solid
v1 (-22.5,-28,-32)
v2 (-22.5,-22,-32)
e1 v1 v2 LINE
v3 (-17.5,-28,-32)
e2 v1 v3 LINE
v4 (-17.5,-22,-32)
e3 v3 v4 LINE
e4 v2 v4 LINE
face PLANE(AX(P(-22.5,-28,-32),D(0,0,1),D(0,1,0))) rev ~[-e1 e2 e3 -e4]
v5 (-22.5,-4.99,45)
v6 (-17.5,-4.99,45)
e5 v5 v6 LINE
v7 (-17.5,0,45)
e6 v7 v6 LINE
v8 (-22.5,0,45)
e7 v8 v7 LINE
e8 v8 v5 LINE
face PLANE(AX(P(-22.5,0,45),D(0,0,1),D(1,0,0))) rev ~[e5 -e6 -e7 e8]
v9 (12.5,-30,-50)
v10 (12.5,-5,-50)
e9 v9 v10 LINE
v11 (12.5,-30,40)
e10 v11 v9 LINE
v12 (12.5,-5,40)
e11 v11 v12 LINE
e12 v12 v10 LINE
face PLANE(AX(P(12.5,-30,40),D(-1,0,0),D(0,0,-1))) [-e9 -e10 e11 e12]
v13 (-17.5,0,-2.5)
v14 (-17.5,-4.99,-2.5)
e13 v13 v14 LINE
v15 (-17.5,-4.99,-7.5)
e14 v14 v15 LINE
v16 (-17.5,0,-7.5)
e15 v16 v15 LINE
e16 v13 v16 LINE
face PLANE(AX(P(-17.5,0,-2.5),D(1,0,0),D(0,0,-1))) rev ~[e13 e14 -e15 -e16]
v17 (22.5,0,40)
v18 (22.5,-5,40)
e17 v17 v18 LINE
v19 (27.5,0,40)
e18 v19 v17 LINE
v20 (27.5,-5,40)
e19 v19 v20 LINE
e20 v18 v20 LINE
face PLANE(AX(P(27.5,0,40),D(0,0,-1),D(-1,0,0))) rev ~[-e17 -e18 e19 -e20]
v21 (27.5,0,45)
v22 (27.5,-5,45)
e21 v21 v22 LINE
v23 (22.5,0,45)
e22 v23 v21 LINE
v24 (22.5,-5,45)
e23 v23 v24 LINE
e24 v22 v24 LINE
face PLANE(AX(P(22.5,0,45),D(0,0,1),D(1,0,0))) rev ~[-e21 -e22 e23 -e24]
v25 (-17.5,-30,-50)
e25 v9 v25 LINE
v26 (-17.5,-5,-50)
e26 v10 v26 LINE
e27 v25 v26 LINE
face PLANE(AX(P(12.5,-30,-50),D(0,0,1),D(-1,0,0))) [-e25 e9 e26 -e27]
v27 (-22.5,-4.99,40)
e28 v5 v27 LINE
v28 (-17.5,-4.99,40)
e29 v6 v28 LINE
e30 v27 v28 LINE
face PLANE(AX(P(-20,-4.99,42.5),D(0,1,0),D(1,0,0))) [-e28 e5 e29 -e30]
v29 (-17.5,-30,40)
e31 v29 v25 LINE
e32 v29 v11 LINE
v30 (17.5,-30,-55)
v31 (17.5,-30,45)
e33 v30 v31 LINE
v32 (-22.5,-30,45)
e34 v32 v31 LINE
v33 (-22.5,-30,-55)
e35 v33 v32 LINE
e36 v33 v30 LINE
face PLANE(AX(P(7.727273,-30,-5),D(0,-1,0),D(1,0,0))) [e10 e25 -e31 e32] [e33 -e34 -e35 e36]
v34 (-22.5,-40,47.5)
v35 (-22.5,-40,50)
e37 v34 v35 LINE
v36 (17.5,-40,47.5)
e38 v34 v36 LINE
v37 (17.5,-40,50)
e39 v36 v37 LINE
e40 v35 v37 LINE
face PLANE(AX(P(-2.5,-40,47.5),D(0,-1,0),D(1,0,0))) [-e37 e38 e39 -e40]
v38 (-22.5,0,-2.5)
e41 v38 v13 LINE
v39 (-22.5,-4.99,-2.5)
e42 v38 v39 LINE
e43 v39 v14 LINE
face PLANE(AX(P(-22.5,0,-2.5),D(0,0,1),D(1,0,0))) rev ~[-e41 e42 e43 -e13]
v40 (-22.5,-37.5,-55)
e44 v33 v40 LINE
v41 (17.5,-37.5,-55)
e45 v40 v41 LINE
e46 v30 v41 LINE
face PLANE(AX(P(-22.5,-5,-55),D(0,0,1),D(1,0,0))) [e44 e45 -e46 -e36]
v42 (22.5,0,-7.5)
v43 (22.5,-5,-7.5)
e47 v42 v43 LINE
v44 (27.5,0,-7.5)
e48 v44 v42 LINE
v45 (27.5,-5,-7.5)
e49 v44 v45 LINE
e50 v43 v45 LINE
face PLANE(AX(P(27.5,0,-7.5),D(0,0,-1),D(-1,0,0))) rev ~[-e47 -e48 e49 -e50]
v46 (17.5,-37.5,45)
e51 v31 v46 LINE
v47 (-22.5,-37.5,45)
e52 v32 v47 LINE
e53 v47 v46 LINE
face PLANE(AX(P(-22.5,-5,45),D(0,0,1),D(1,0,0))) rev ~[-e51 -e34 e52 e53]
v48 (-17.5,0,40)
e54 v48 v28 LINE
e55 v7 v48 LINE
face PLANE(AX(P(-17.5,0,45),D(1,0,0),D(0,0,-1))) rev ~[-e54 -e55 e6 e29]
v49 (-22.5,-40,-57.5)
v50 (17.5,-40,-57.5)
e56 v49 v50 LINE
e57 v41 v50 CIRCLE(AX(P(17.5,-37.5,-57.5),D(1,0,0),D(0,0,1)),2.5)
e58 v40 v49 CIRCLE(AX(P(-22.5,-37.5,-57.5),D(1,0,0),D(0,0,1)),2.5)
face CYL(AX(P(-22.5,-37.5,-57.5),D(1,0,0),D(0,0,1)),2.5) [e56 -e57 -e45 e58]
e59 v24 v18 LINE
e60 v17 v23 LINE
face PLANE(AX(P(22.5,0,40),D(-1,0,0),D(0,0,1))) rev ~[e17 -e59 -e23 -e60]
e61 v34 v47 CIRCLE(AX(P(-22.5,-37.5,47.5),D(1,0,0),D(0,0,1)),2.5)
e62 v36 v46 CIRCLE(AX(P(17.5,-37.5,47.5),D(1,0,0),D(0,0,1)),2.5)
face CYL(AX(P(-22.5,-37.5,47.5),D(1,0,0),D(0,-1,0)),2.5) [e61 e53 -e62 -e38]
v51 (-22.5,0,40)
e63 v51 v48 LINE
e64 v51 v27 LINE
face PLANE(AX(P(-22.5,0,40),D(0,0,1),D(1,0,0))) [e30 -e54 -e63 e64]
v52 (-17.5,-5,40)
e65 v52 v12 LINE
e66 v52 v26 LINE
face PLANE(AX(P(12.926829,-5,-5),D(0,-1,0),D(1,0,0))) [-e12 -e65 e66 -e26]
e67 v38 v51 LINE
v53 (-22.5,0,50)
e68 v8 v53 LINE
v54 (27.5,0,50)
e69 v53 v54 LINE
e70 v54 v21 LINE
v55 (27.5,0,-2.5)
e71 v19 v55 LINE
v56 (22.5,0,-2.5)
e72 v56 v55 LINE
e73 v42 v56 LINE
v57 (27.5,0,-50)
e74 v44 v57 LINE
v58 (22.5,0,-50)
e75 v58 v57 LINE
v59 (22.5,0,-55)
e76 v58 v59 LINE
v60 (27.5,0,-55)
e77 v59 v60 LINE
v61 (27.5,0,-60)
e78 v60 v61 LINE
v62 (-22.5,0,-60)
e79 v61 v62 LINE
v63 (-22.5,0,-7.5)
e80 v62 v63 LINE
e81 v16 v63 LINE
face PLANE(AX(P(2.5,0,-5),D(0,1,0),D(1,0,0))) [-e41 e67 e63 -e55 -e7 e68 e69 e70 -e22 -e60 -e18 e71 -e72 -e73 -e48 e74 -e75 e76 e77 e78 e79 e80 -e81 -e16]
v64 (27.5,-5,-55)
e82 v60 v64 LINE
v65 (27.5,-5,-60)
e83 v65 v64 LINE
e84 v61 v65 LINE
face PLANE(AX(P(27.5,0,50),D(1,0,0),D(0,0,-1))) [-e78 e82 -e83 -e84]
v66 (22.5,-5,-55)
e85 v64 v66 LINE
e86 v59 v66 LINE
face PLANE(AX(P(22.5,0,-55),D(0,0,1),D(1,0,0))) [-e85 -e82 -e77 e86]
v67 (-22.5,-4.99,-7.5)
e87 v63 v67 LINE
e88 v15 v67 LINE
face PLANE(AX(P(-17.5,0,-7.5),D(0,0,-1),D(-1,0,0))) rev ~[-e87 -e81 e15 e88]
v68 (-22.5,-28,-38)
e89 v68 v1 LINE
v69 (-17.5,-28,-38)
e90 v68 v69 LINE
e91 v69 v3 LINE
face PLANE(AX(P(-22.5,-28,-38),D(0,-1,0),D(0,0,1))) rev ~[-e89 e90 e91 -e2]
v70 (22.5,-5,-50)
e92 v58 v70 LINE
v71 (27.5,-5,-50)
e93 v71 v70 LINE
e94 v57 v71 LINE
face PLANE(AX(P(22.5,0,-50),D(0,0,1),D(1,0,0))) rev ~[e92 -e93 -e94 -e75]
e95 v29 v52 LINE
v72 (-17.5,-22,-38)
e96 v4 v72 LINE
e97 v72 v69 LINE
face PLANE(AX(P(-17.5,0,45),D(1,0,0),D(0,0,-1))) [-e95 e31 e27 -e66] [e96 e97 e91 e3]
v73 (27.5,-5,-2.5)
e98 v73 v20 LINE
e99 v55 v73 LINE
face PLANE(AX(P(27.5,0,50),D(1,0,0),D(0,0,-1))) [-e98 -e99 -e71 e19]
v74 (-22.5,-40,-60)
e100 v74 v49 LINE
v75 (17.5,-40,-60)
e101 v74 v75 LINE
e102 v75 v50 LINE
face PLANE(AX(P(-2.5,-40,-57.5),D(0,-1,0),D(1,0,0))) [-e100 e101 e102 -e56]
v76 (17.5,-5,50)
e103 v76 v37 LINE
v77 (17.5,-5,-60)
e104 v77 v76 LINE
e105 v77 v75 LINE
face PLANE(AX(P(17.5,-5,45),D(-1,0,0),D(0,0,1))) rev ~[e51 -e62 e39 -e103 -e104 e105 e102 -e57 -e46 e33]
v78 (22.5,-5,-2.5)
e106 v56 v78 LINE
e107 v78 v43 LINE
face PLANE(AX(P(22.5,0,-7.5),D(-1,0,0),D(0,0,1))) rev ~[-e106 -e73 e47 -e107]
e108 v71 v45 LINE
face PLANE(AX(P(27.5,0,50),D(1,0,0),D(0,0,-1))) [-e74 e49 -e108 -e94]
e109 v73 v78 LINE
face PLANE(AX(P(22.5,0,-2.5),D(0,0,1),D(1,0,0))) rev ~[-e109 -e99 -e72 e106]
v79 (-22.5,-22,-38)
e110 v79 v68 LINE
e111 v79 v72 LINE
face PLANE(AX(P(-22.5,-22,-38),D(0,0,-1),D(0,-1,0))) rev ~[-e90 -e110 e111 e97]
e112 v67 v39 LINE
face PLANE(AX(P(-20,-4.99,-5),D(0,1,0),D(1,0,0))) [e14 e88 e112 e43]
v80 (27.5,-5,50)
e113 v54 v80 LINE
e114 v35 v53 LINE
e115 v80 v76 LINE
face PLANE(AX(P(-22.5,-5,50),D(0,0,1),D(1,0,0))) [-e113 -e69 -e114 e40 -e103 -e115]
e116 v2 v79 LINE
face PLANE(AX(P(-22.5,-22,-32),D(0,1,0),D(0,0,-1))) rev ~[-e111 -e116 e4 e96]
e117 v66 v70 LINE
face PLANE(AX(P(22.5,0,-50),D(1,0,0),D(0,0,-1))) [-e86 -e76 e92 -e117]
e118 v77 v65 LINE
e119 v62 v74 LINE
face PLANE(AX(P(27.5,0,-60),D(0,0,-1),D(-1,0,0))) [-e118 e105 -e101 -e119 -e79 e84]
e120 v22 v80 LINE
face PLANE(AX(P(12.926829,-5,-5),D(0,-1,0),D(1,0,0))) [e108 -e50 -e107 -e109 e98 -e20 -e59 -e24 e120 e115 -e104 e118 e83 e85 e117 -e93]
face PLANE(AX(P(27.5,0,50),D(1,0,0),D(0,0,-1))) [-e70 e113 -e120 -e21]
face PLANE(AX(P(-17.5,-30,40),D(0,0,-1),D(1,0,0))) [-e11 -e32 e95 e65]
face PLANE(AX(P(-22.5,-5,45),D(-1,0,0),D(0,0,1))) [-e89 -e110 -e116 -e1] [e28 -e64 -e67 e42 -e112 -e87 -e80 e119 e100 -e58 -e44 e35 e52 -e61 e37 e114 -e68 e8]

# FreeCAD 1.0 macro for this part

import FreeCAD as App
import Part
import Sketcher
Q = App.Units.Quantity


def edges_at(feature, points):
    """Names of the edges that pass closest to the given points."""
    edges = feature.Shape.Edges
    near = lambda p: min(range(len(edges)), key=lambda i: edges[i].distToShape(Part.Vertex(*p))[0])
    return sorted({f"Edge{near(p) + 1}" for p in points})


def add_polygon(sketch, points):
    """Adds a closed chain of lines whose ends are joined by coincident constraints."""
    first, n = sketch.GeometryCount, len(points)
    for a, b in zip(points, points[1:] + points[:1]):
        sketch.addGeometry(Part.LineSegment(App.Vector(*a, 0), App.Vector(*b, 0)), False)
    for i in range(n):
        sketch.addConstraint(Sketcher.Constraint("Coincident", first + i, 2, first + (i + 1) % n, 1))

doc = App.newDocument("Part")
body = doc.addObject("PartDesign::Body", "Body")

sketch1 = body.newObject("Sketcher::SketchObject", "Sketch")
sketch1.AttachmentSupport = (doc.getObject("XZ_Plane"), [""])
sketch1.MapMode = "FlatFace"
add_polygon(sketch1, [(-22.5, -60), (-22.5, 50), (27.5, 50), (27.5, -60)])
add_polygon(sketch1, [(-17.5, 45), (-17.5, -55), (22.5, -55), (22.5, 45)])
sketch1.addConstraint(Sketcher.Constraint("Vertical", 0))
sketch1.addConstraint(Sketcher.Constraint("Horizontal", 1))
sketch1.addConstraint(Sketcher.Constraint("Vertical", 2))
sketch1.addConstraint(Sketcher.Constraint("Horizontal", 3))
sketch1.addConstraint(Sketcher.Constraint("Vertical", 4))
sketch1.addConstraint(Sketcher.Constraint("Horizontal", 5))
sketch1.addConstraint(Sketcher.Constraint("Vertical", 6))
sketch1.addConstraint(Sketcher.Constraint("Horizontal", 7))
sketch1.addConstraint(Sketcher.Constraint("DistanceX", 1, 1, 1, 2, Q("50 mm")))
sketch1.addConstraint(Sketcher.Constraint("DistanceX", 5, 1, 5, 2, Q("40 mm")))
sketch1.addConstraint(Sketcher.Constraint("DistanceY", 0, 1, 0, 2, Q("110 mm")))
sketch1.addConstraint(Sketcher.Constraint("DistanceY", 4, 2, 4, 1, Q("100 mm")))
sketch1.addConstraint(Sketcher.Constraint("DistanceY", -1, 1, 0, 2, Q("50 mm")))
sketch1.addConstraint(Sketcher.Constraint("DistanceY", 4, 2, -1, 1, Q("55 mm")))
sketch1.addConstraint(Sketcher.Constraint("DistanceX", 3, 2, 4, 2, Q("5 mm")))
sketch1.addConstraint(Sketcher.Constraint("DistanceX", 0, 2, -1, 1, Q("22.5 mm")))
pad1 = body.newObject("PartDesign::Pad", "Pad")
pad1.Profile = sketch1
pad1.Length = 30

sketch2 = body.newObject("Sketcher::SketchObject", "Sketch001")
sketch2.AttachmentSupport = (doc.getObject("YZ_Plane"), [""])
sketch2.MapMode = "FlatFace"
sketch2.AttachmentOffset = App.Placement(App.Vector(0, 0, -22.5), App.Rotation())
add_polygon(sketch2, [(-28, -32), (-22, -32), (-22, -38), (-28, -38)])
sketch2.addConstraint(Sketcher.Constraint("Horizontal", 0))
sketch2.addConstraint(Sketcher.Constraint("Vertical", 1))
sketch2.addConstraint(Sketcher.Constraint("Horizontal", 2))
sketch2.addConstraint(Sketcher.Constraint("Vertical", 3))
sketch2.addConstraint(Sketcher.Constraint("Equal", 2, 1))
sketch2.addConstraint(Sketcher.Constraint("DistanceX", 0, 1, 0, 2, Q("6 mm")))
sketch2.addConstraint(Sketcher.Constraint("DistanceX", 0, 2, -1, 1, Q("22 mm")))
sketch2.addConstraint(Sketcher.Constraint("DistanceY", 0, 2, -1, 1, Q("32 mm")))
pocket1 = body.newObject("PartDesign::Pocket", "Pocket")
pocket1.Profile = sketch2
pocket1.Length = 5
pocket1.Reversed = True

sketch3 = body.newObject("Sketcher::SketchObject", "Sketch002")
sketch3.AttachmentSupport = (doc.getObject("XZ_Plane"), [""])
sketch3.MapMode = "FlatFace"
add_polygon(sketch3, [(-17.5, -55), (-17.5, 45), (22.5, 45), (22.5, -55)])
sketch3.addConstraint(Sketcher.Constraint("Vertical", 0))
sketch3.addConstraint(Sketcher.Constraint("Horizontal", 1))
sketch3.addConstraint(Sketcher.Constraint("Vertical", 2))
sketch3.addConstraint(Sketcher.Constraint("Horizontal", 3))
sketch3.addConstraint(Sketcher.Constraint("DistanceX", 1, 1, 1, 2, Q("40 mm")))
sketch3.addConstraint(Sketcher.Constraint("DistanceY", 0, 1, 0, 2, Q("100 mm")))
sketch3.addConstraint(Sketcher.Constraint("DistanceY", -1, 1, 0, 2, Q("45 mm")))
sketch3.addConstraint(Sketcher.Constraint("DistanceX", 0, 2, -1, 1, Q("17.5 mm")))
pad2 = body.newObject("PartDesign::Pad", "Pad001")
pad2.Profile = sketch3
pad2.Length = 5

sketch4 = body.newObject("Sketcher::SketchObject", "Sketch003")
sketch4.AttachmentSupport = (doc.getObject("XZ_Plane"), [""])
sketch4.MapMode = "FlatFace"
sketch4.AttachmentOffset = App.Placement(App.Vector(0, 0, 30), App.Rotation())
add_polygon(sketch4, [(27.5, 50), (-22.5, 50), (-22.5, 45), (22.5, 45), (22.5, -55), (-22.5, -55), (-22.5, -60), (27.5, -60)])
sketch4.addConstraint(Sketcher.Constraint("Horizontal", 0))
sketch4.addConstraint(Sketcher.Constraint("Vertical", 1))
sketch4.addConstraint(Sketcher.Constraint("Horizontal", 2))
sketch4.addConstraint(Sketcher.Constraint("Vertical", 3))
sketch4.addConstraint(Sketcher.Constraint("Horizontal", 4))
sketch4.addConstraint(Sketcher.Constraint("Vertical", 5))
sketch4.addConstraint(Sketcher.Constraint("Horizontal", 6))
sketch4.addConstraint(Sketcher.Constraint("Vertical", 7))
sketch4.addConstraint(Sketcher.Constraint("Vertical", 1, 2, 4, 2))
sketch4.addConstraint(Sketcher.Constraint("Equal", 1, 5))
sketch4.addConstraint(Sketcher.Constraint("DistanceX", 0, 2, 0, 1, Q("50 mm")))
sketch4.addConstraint(Sketcher.Constraint("DistanceX", 2, 1, 2, 2, Q("45 mm")))
sketch4.addConstraint(Sketcher.Constraint("DistanceY", 1, 2, 1, 1, Q("5 mm")))
sketch4.addConstraint(Sketcher.Constraint("DistanceY", 3, 2, 3, 1, Q("100 mm")))
sketch4.addConstraint(Sketcher.Constraint("DistanceY", -1, 1, 0, 2, Q("50 mm")))
sketch4.addConstraint(Sketcher.Constraint("DistanceX", 0, 2, -1, 1, Q("22.5 mm")))
pocket2 = body.newObject("PartDesign::Pocket", "Pocket001")
pocket2.Profile = sketch4
pocket2.Length = 25

sketch5 = body.newObject("Sketcher::SketchObject", "Sketch004")
sketch5.AttachmentSupport = (doc.getObject("XZ_Plane"), [""])
sketch5.MapMode = "FlatFace"
sketch5.AttachmentOffset = App.Placement(App.Vector(0, 0, 30), App.Rotation())
add_polygon(sketch5, [(17.5, 45), (-17.5, 45), (-17.5, 40), (12.5, 40), (12.5, -50), (-17.5, -50), (-17.5, -55), (17.5, -55)])
sketch5.addConstraint(Sketcher.Constraint("Horizontal", 0))
sketch5.addConstraint(Sketcher.Constraint("Vertical", 1))
sketch5.addConstraint(Sketcher.Constraint("Horizontal", 2))
sketch5.addConstraint(Sketcher.Constraint("Vertical", 3))
sketch5.addConstraint(Sketcher.Constraint("Horizontal", 4))
sketch5.addConstraint(Sketcher.Constraint("Vertical", 5))
sketch5.addConstraint(Sketcher.Constraint("Horizontal", 6))
sketch5.addConstraint(Sketcher.Constraint("Vertical", 7))
sketch5.addConstraint(Sketcher.Constraint("Vertical", 1, 2, 4, 2))
sketch5.addConstraint(Sketcher.Constraint("Equal", 1, 5))
sketch5.addConstraint(Sketcher.Constraint("DistanceX", 0, 2, 0, 1, Q("35 mm")))
sketch5.addConstraint(Sketcher.Constraint("DistanceX", 2, 1, 2, 2, Q("30 mm")))
sketch5.addConstraint(Sketcher.Constraint("DistanceY", 1, 2, 1, 1, Q("5 mm")))
sketch5.addConstraint(Sketcher.Constraint("DistanceY", 3, 2, 3, 1, Q("90 mm")))
sketch5.addConstraint(Sketcher.Constraint("DistanceY", -1, 1, 0, 2, Q("45 mm")))
sketch5.addConstraint(Sketcher.Constraint("DistanceX", 0, 2, -1, 1, Q("17.5 mm")))
pad3 = body.newObject("PartDesign::Pad", "Pad002")
pad3.Profile = sketch5
pad3.Length = 25
pad3.Reversed = True

sketch6 = body.newObject("Sketcher::SketchObject", "Sketch005")
sketch6.AttachmentSupport = (doc.getObject("XZ_Plane"), [""])
sketch6.MapMode = "FlatFace"
sketch6.AttachmentOffset = App.Placement(App.Vector(0, 0, 5), App.Rotation())
add_polygon(sketch6, [(-22.5, 50), (-22.5, 45), (17.5, 45), (17.5, 50)])
add_polygon(sketch6, [(-22.5, -55), (-22.5, -60), (17.5, -60), (17.5, -55)])
sketch6.addConstraint(Sketcher.Constraint("Vertical", 0))
sketch6.addConstraint(Sketcher.Constraint("Horizontal", 1))
sketch6.addConstraint(Sketcher.Constraint("Vertical", 2))
sketch6.addConstraint(Sketcher.Constraint("Horizontal", 3))
sketch6.addConstraint(Sketcher.Constraint("Vertical", 4))
sketch6.addConstraint(Sketcher.Constraint("Horizontal", 5))
sketch6.addConstraint(Sketcher.Constraint("Vertical", 6))
sketch6.addConstraint(Sketcher.Constraint("Horizontal", 7))
sketch6.addConstraint(Sketcher.Constraint("Vertical", 3, 2, 4, 2))
sketch6.addConstraint(Sketcher.Constraint("Vertical", 2, 2, 5, 2))
sketch6.addConstraint(Sketcher.Constraint("Equal", 2, 4))
sketch6.addConstraint(Sketcher.Constraint("DistanceX", 1, 1, 1, 2, Q("40 mm")))
sketch6.addConstraint(Sketcher.Constraint("DistanceY", 0, 2, 0, 1, Q("5 mm")))
sketch6.addConstraint(Sketcher.Constraint("DistanceY", -1, 1, 0, 2, Q("45 mm")))
sketch6.addConstraint(Sketcher.Constraint("DistanceY", 4, 2, -1, 1, Q("60 mm")))
sketch6.addConstraint(Sketcher.Constraint("DistanceX", 0, 2, -1, 1, Q("22.5 mm")))
pad4 = body.newObject("PartDesign::Pad", "Pad003")
pad4.Profile = sketch6
pad4.Length = 35

sketch7 = body.newObject("Sketcher::SketchObject", "Sketch006")
sketch7.AttachmentSupport = (doc.getObject("XZ_Plane"), [""])
sketch7.MapMode = "FlatFace"
add_polygon(sketch7, [(22.5, -55), (22.5, -50), (27.5, -50), (27.5, -55)])
add_polygon(sketch7, [(27.5, -7.5), (22.5, -7.5), (22.5, -2.5), (27.5, -2.5)])
add_polygon(sketch7, [(27.5, 45), (27.5, 40), (22.5, 40), (22.5, 45)])
sketch7.addConstraint(Sketcher.Constraint("Vertical", 0))
sketch7.addConstraint(Sketcher.Constraint("Horizontal", 1))
sketch7.addConstraint(Sketcher.Constraint("Vertical", 2))
sketch7.addConstraint(Sketcher.Constraint("Horizontal", 3))
sketch7.addConstraint(Sketcher.Constraint("Horizontal", 4))
sketch7.addConstraint(Sketcher.Constraint("Vertical", 5))
sketch7.addConstraint(Sketcher.Constraint("Horizontal", 6))
sketch7.addConstraint(Sketcher.Constraint("Vertical", 7))
sketch7.addConstraint(Sketcher.Constraint("Vertical", 8))
sketch7.addConstraint(Sketcher.Constraint("Horizontal", 9))
sketch7.addConstraint(Sketcher.Constraint("Vertical", 10))
sketch7.addConstraint(Sketcher.Constraint("Horizontal", 11))
sketch7.addConstraint(Sketcher.Constraint("Vertical", 3, 2, 4, 2))
sketch7.addConstraint(Sketcher.Constraint("Vertical", 2, 2, 6, 2))
sketch7.addConstraint(Sketcher.Constraint("Vertical", 7, 2, 8, 2))
sketch7.addConstraint(Sketcher.Constraint("Vertical", 5, 2, 9, 2))
sketch7.addConstraint(Sketcher.Constraint("Equal", 11, 0))
sketch7.addConstraint(Sketcher.Constraint("Equal", 2, 5))
sketch7.addConstraint(Sketcher.Constraint("Equal", 7, 8))
sketch7.addConstraint(Sketcher.Constraint("DistanceX", 1, 1, 1, 2, Q("5 mm")))
sketch7.addConstraint(Sketcher.Constraint("DistanceY", 0, 2, -1, 1, Q("50 mm")))
sketch7.addConstraint(Sketcher.Constraint("DistanceY", -1, 1, 8, 2, Q("40 mm")))
sketch7.addConstraint(Sketcher.Constraint("DistanceX", -1, 1, 0, 2, Q("22.5 mm")))
sketch7.addConstraint(Sketcher.Constraint("DistanceY", 4, 2, -1, 1, Q("7.5 mm")))
pocket3 = body.newObject("PartDesign::Pocket", "Pocket002")
pocket3.Profile = sketch7
pocket3.Length = 6
pocket3.Reversed = True

sketch8 = body.newObject("Sketcher::SketchObject", "Sketch007")
sketch8.AttachmentSupport = (doc.getObject("XZ_Plane"), [""])
sketch8.MapMode = "FlatFace"
add_polygon(sketch8, [(-17.5, -7.5), (-22.5, -7.5), (-22.5, -2.5), (-17.5, -2.5)])
add_polygon(sketch8, [(-22.5, 40), (-22.5, 45), (-17.5, 45), (-17.5, 40)])
sketch8.addConstraint(Sketcher.Constraint("Horizontal", 0))
sketch8.addConstraint(Sketcher.Constraint("Vertical", 1))
sketch8.addConstraint(Sketcher.Constraint("Horizontal", 2))
sketch8.addConstraint(Sketcher.Constraint("Vertical", 3))
sketch8.addConstraint(Sketcher.Constraint("Vertical", 4))
sketch8.addConstraint(Sketcher.Constraint("Horizontal", 5))
sketch8.addConstraint(Sketcher.Constraint("Vertical", 6))
sketch8.addConstraint(Sketcher.Constraint("Horizontal", 7))
sketch8.addConstraint(Sketcher.Constraint("Vertical", 1, 2, 4, 2))
sketch8.addConstraint(Sketcher.Constraint("Vertical", 3, 2, 5, 2))
sketch8.addConstraint(Sketcher.Constraint("Equal", 7, 1))
sketch8.addConstraint(Sketcher.Constraint("Equal", 3, 4))
sketch8.addConstraint(Sketcher.Constraint("DistanceX", 0, 2, 0, 1, Q("5 mm")))
sketch8.addConstraint(Sketcher.Constraint("DistanceY", -1, 1, 4, 2, Q("45 mm")))
sketch8.addConstraint(Sketcher.Constraint("DistanceX", 0, 2, -1, 1, Q("22.5 mm")))
sketch8.addConstraint(Sketcher.Constraint("DistanceY", 0, 2, -1, 1, Q("7.5 mm")))
pocket4 = body.newObject("PartDesign::Pocket", "Pocket003")
pocket4.Profile = sketch8
pocket4.Length = 4.99
pocket4.Reversed = True
doc.recompute()

fillet = body.newObject("PartDesign::Fillet", "Fillet")
fillet.Base = (pocket4, edges_at(pocket4, [(-2.5, -40, 45), (-2.5, -40, -55)]))
fillet.Radius = 2.5

doc.recompute()
